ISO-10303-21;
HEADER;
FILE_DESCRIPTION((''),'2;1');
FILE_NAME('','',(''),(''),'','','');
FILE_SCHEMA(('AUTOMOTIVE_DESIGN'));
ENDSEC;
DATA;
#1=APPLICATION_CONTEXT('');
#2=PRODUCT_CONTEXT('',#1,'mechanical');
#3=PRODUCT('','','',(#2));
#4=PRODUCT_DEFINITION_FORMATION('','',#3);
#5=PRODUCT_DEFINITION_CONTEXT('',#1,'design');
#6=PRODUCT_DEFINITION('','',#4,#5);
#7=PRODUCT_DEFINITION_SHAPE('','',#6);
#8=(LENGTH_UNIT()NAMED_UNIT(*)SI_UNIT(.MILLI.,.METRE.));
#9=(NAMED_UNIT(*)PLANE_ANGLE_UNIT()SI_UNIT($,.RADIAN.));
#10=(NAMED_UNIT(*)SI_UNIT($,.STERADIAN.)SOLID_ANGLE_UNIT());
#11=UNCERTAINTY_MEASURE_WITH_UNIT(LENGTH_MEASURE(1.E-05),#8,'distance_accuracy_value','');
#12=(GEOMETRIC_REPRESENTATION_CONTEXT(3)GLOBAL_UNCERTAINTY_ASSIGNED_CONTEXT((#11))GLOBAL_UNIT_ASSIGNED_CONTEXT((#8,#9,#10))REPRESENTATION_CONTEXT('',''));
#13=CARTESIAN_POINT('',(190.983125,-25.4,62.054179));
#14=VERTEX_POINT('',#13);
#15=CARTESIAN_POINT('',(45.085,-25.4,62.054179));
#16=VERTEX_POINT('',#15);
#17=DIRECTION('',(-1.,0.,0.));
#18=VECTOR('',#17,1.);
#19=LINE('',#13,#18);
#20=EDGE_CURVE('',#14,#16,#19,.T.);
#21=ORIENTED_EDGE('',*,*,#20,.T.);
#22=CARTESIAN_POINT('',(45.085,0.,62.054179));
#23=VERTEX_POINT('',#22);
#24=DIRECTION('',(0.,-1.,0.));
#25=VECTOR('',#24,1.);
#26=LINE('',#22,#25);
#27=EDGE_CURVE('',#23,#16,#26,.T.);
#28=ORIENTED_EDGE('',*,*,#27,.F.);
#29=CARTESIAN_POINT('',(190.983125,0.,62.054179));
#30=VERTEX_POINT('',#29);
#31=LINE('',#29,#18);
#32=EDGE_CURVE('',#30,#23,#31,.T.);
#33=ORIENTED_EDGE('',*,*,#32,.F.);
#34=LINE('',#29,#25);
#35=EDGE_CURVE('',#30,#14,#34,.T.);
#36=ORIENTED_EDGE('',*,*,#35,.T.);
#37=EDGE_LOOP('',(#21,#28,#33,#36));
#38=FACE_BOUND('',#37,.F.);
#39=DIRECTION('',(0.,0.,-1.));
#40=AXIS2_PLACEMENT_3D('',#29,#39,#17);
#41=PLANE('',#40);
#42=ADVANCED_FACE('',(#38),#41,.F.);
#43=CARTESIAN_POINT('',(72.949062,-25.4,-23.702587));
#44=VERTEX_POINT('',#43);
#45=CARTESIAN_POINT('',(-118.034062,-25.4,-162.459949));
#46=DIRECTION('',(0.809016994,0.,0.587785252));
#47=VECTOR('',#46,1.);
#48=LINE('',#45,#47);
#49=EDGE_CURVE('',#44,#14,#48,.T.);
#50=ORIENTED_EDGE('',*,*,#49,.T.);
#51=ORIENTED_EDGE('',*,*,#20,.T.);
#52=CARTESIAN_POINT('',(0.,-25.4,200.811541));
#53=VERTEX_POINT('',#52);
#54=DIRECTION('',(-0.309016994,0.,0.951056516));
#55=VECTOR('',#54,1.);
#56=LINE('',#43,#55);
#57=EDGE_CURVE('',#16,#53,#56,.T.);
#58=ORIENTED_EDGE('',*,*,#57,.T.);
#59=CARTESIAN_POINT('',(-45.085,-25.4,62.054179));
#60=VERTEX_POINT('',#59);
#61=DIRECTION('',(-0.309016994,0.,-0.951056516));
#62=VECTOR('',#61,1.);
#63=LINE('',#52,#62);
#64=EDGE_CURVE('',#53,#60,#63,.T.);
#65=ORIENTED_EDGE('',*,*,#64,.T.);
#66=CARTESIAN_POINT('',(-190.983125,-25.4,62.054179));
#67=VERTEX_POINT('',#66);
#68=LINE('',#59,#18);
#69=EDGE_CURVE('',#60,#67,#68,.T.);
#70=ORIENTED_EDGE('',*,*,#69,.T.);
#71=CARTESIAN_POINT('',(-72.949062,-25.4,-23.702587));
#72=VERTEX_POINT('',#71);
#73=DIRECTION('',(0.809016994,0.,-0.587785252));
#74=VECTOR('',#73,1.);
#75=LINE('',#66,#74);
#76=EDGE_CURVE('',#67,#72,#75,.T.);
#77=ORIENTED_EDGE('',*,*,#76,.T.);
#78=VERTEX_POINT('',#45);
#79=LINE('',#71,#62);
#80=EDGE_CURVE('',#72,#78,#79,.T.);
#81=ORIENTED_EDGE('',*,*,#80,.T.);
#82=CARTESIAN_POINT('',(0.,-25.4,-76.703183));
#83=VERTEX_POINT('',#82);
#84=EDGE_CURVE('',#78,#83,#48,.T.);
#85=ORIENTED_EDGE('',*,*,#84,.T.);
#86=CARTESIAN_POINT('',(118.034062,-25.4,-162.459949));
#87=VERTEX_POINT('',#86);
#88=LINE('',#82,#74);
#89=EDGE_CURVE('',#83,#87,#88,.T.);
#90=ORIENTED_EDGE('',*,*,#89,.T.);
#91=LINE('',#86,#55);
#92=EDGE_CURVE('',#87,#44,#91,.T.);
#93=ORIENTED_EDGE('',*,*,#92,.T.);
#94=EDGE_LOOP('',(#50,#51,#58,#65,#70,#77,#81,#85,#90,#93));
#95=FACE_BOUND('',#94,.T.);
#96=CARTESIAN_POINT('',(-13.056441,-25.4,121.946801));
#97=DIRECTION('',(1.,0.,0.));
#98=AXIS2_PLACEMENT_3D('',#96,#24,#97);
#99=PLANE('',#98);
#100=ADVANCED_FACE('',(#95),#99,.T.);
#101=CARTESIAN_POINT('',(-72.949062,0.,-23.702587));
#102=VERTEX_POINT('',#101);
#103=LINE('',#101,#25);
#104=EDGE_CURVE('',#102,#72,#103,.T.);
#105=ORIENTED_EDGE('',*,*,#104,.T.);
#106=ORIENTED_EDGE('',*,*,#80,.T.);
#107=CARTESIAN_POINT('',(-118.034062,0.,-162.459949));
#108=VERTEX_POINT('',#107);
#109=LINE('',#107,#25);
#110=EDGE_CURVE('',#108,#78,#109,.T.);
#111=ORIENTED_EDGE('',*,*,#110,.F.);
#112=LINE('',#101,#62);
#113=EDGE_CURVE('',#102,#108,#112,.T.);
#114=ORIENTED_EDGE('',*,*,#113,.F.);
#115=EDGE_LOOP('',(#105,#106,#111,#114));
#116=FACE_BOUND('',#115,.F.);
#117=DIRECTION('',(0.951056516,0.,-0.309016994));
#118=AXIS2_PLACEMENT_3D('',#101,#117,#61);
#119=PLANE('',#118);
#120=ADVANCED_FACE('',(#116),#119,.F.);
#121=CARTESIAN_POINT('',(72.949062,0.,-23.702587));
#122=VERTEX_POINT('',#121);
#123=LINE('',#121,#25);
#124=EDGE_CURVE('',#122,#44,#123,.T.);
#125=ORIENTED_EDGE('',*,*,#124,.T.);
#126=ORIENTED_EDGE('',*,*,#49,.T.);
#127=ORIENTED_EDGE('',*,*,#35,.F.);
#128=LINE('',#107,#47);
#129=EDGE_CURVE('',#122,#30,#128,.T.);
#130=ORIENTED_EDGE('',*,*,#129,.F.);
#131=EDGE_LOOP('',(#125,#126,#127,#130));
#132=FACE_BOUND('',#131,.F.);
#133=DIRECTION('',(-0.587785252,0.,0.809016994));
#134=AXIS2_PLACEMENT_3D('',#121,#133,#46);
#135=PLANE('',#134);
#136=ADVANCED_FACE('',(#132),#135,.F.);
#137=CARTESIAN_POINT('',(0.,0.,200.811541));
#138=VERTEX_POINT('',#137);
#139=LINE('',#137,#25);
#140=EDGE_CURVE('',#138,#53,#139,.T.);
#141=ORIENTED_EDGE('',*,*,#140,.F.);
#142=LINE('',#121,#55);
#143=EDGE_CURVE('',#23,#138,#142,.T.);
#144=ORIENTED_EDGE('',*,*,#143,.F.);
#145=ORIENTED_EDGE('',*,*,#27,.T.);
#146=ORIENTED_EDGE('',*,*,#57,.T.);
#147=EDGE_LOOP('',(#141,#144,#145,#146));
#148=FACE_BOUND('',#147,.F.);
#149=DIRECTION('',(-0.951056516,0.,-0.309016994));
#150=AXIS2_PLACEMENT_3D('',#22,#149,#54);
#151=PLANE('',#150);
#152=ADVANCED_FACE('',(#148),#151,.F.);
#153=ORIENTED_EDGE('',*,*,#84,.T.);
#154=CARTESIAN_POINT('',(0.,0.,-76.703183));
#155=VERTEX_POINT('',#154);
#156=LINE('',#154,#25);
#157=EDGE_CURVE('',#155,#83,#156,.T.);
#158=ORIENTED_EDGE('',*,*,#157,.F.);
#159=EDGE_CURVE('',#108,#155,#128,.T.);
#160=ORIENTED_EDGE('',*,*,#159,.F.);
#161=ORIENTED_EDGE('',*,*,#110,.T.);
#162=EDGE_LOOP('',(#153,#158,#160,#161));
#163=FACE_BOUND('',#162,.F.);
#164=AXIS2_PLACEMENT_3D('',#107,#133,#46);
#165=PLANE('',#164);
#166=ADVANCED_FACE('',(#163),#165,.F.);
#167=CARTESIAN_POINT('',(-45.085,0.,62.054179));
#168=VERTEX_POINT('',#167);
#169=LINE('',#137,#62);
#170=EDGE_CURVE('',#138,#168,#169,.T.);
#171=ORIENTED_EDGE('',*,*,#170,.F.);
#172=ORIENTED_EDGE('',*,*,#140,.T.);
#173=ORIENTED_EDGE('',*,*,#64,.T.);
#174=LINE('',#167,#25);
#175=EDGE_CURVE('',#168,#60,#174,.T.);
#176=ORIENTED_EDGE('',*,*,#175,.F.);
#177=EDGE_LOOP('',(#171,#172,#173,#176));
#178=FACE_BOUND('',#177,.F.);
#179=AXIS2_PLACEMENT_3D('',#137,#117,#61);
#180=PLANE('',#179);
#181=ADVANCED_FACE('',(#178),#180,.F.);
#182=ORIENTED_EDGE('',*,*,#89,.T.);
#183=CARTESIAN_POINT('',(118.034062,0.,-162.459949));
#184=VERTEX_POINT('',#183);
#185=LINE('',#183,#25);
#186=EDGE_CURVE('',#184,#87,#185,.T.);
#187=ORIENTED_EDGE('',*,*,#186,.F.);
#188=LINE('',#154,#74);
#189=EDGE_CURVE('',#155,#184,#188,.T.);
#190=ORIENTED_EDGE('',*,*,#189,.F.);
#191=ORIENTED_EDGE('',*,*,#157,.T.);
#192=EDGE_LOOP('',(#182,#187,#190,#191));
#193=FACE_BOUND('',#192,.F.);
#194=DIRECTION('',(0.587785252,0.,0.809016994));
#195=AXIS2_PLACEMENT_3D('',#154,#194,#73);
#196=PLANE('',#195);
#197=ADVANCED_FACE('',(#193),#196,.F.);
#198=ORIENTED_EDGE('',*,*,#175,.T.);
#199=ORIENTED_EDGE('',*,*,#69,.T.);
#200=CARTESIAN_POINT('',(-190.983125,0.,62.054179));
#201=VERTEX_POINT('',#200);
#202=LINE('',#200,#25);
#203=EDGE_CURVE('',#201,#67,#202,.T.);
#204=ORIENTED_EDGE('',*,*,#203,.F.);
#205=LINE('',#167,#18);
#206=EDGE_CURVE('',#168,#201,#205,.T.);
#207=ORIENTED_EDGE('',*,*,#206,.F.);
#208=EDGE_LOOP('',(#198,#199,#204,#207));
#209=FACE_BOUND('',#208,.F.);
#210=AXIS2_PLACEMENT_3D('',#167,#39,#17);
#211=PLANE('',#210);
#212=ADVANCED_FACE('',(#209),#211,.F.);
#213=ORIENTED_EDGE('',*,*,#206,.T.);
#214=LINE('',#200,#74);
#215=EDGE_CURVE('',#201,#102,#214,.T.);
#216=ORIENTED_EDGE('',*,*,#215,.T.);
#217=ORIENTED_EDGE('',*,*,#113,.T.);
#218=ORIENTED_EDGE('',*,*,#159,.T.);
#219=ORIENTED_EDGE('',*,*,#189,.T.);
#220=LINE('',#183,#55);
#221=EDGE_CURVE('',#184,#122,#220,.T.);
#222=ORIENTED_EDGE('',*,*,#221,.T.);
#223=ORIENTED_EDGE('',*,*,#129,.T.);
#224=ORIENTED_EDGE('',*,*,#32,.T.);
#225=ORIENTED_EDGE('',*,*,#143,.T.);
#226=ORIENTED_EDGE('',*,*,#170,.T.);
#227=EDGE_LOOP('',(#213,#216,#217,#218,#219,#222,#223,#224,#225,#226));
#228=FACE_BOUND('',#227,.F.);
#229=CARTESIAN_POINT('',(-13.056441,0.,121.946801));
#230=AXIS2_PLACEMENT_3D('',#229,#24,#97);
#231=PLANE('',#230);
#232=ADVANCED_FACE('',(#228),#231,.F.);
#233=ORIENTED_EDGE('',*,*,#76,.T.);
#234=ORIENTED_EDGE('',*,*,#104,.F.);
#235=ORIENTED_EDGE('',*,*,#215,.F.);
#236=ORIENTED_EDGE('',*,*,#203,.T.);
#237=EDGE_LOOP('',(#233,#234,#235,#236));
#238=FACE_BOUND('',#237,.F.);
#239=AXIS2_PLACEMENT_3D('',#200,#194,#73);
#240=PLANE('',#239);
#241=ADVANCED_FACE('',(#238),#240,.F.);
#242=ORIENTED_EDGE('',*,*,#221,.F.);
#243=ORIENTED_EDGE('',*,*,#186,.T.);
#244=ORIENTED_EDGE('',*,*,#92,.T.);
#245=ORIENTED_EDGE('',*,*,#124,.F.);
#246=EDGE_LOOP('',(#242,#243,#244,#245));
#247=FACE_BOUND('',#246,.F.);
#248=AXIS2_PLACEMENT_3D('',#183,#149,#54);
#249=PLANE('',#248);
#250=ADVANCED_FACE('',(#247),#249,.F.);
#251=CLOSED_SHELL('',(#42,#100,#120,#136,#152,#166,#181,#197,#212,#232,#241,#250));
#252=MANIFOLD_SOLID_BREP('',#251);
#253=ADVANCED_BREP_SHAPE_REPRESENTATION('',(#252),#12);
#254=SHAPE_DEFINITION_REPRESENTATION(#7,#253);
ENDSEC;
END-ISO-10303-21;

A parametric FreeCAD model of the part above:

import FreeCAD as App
import Part
import Sketcher
Q = App.Units.Quantity

doc = App.newDocument("Part")
body = doc.addObject("PartDesign::Body", "Body")

sketch1 = body.newObject("Sketcher::SketchObject", "Sketch")
sketch1.AttachmentSupport = (doc.getObject("XZ_Plane"), [""])
sketch1.MapMode = "FlatFace"
sketch1.addGeometry(Part.LineSegment(App.Vector(0, 201, 0), App.Vector(-45, 62, 0)), False)
sketch1.addGeometry(Part.LineSegment(App.Vector(-45, 62, 0), App.Vector(-191, 62, 0)), False)
sketch1.addGeometry(Part.LineSegment(App.Vector(-191, 62, 0), App.Vector(-73, -24, 0)), False)
sketch1.addGeometry(Part.LineSegment(App.Vector(-73, -24, 0), App.Vector(-118, -162, 0)), False)
sketch1.addGeometry(Part.LineSegment(App.Vector(-118, -162, 0), App.Vector(0, -77, 0)), False)
sketch1.addGeometry(Part.LineSegment(App.Vector(0, -77, 0), App.Vector(118, -162, 0)), False)
sketch1.addGeometry(Part.LineSegment(App.Vector(118, -162, 0), App.Vector(73, -24, 0)), False)
sketch1.addGeometry(Part.LineSegment(App.Vector(73, -24, 0), App.Vector(191, 62, 0)), False)
sketch1.addGeometry(Part.LineSegment(App.Vector(191, 62, 0), App.Vector(45, 62, 0)), False)
sketch1.addGeometry(Part.LineSegment(App.Vector(45, 62, 0), App.Vector(0, 201, 0)), False)
sketch1.addConstraint(Sketcher.Constraint("Coincident", 0, 2, 1, 1))
sketch1.addConstraint(Sketcher.Constraint("Coincident", 1, 2, 2, 1))
sketch1.addConstraint(Sketcher.Constraint("Coincident", 2, 2, 3, 1))
sketch1.addConstraint(Sketcher.Constraint("Coincident", 3, 2, 4, 1))
sketch1.addConstraint(Sketcher.Constraint("Coincident", 4, 2, 5, 1))
sketch1.addConstraint(Sketcher.Constraint("Coincident", 5, 2, 6, 1))
sketch1.addConstraint(Sketcher.Constraint("Coincident", 6, 2, 7, 1))
sketch1.addConstraint(Sketcher.Constraint("Coincident", 7, 2, 8, 1))
sketch1.addConstraint(Sketcher.Constraint("Coincident", 8, 2, 9, 1))
sketch1.addConstraint(Sketcher.Constraint("Coincident", 9, 2, 0, 1))
sketch1.addConstraint(Sketcher.Constraint("Horizontal", 1))
sketch1.addConstraint(Sketcher.Constraint("Horizontal", 8))
sketch1.addConstraint(Sketcher.Constraint("Symmetric", 3, 2, 5, 2, -2))
sketch1.addConstraint(Sketcher.Constraint("Symmetric", 2, 2, 6, 2, -2))
sketch1.addConstraint(Sketcher.Constraint("Symmetric", 1, 2, 7, 2, -2))
sketch1.addConstraint(Sketcher.Constraint("PointOnObject", 4, 2, -2))
sketch1.addConstraint(Sketcher.Constraint("PointOnObject", 9, 2, -2))
sketch1.addConstraint(Sketcher.Constraint("Parallel", 0, 3))
sketch1.addConstraint(Sketcher.Constraint("Parallel", 2, 5))
sketch1.addConstraint(Sketcher.Constraint("Parallel", 6, 9))
sketch1.addConstraint(Sketcher.Constraint("Equal", 0, 2))
sketch1.addConstraint(Sketcher.Constraint("Equal", 2, 3))
sketch1.addConstraint(Sketcher.Constraint("Equal", 3, 4))
sketch1.addConstraint(Sketcher.Constraint("Angle", 0, Q("-108 deg")))
sketch1.addConstraint(Sketcher.Constraint("Angle", 2, Q("-36 deg")))
sketch1.addConstraint(Sketcher.Constraint("DistanceX", 0, 2, 8, 2, Q("3.55 in")))
sketch1.addConstraint(Sketcher.Constraint("DistanceY", -1, 1, 0, 2, Q("62.054179 mm")))
pad1 = body.newObject("PartDesign::Pad", "Pad")
pad1.Profile = sketch1
pad1.Length = Q("1 in")

doc.recompute()
